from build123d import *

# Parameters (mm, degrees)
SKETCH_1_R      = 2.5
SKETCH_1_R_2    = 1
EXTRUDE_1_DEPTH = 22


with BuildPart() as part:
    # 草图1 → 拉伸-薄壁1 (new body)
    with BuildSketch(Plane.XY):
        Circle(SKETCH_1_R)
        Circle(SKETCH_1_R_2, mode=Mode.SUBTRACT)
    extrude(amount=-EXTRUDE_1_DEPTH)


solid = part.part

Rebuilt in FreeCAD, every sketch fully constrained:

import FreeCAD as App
import Part
import Sketcher
Q = App.Units.Quantity

doc = App.newDocument("Part")
body = doc.addObject("PartDesign::Body", "Body")

# Sketch on XY plane
sketch1 = body.newObject("Sketcher::SketchObject", "Sketch")
sketch1.AttachmentSupport = (doc.getObject("XY_Plane"), [""])
sketch1.MapMode = "FlatFace"
sketch1.addGeometry([
    Part.Circle(App.Vector(0, 0, 0), App.Vector(0, 0, 1), 2.5),
    Part.Circle(App.Vector(0, 0, 0), App.Vector(0, 0, 1), 1),
], False)
sketch1.addConstraint([
    Sketcher.Constraint("Coincident", 0, 3, -1, 1),
    Sketcher.Constraint("Coincident", 1, 3, -1, 1),
    Sketcher.Constraint("Diameter", 0, Q("5 mm")),
    Sketcher.Constraint("Diameter", 1, Q("2 mm")),
])
pad1 = body.newObject("PartDesign::Pad", "Pad")
pad1.Profile = sketch1
pad1.Length = 22
pad1.Reversed = True

doc.recompute()
